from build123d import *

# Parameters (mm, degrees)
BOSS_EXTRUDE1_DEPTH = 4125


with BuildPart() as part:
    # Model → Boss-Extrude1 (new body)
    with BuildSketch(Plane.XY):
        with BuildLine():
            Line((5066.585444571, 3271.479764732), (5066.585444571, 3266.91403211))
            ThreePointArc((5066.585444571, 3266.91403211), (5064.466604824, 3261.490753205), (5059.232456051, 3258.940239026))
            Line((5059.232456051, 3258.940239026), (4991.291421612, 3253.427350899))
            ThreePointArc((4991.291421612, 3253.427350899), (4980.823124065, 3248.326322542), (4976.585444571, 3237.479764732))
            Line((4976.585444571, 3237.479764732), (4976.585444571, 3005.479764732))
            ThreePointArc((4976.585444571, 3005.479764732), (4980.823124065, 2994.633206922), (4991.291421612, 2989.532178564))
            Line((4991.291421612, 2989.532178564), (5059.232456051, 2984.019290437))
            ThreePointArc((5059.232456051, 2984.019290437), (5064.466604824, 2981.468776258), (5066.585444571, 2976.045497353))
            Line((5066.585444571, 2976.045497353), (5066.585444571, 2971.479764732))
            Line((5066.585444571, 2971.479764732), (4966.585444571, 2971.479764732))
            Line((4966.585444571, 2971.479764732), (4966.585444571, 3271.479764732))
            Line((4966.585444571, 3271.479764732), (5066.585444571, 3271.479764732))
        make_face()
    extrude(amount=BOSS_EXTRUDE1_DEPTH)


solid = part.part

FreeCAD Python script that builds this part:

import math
import FreeCAD as App
import Part
import Sketcher

doc = App.newDocument("Part")
body = doc.addObject("PartDesign::Body", "Body")

# Sketch on XY plane
sketch1 = body.newObject("Sketcher::SketchObject", "Sketch")
sketch1.AttachmentSupport = (doc.getObject("XY_Plane"), [""])
sketch1.MapMode = "FlatFace"
sketch1.addGeometry([
    Part.LineSegment(App.Vector(5066.6, 3266.9, 0), App.Vector(5066.6, 3271.5, 0)),  # 0
    Part.LineSegment(App.Vector(5066.6, 3271.5, 0), App.Vector(4966.6, 3271.5, 0)),  # 1
    Part.LineSegment(App.Vector(4966.6, 3271.5, 0), App.Vector(4966.6, 2971.5, 0)),  # 2
    Part.LineSegment(App.Vector(4966.6, 2971.5, 0), App.Vector(5066.6, 2971.5, 0)),  # 3
    Part.LineSegment(App.Vector(5066.6, 2971.5, 0), App.Vector(5066.6, 2976, 0)),  # 4
    Part.ArcOfCircle(Part.Circle(App.Vector(5058.6, 2976, 0), App.Vector(0, 0, 1), 8), math.radians(0), math.radians(85)),  # 5
    Part.LineSegment(App.Vector(5059.2, 2984, 0), App.Vector(4991.3, 2989.5, 0)),  # 6
    Part.ArcOfCircle(Part.Circle(App.Vector(4992.6, 3005.5, 0), App.Vector(0, 0, 1), 16), math.radians(180), math.radians(265)),  # 7
    Part.LineSegment(App.Vector(4976.6, 3005.5, 0), App.Vector(4976.6, 3237.5, 0)),  # 8
    Part.ArcOfCircle(Part.Circle(App.Vector(4992.6, 3237.5, 0), App.Vector(0, 0, 1), 16), math.radians(95), math.radians(180)),  # 9
    Part.LineSegment(App.Vector(4991.3, 3253.4, 0), App.Vector(5059.2, 3258.9, 0)),  # 10
    Part.ArcOfCircle(Part.Circle(App.Vector(5058.6, 3266.9, 0), App.Vector(0, 0, 1), 8), math.radians(-85), math.radians(0)),  # 11
], False)
sketch1.addConstraint([
    Sketcher.Constraint("Coincident", 0, 2, 1, 1),
    Sketcher.Constraint("Coincident", 1, 2, 2, 1),
    Sketcher.Constraint("Coincident", 2, 2, 3, 1),
    Sketcher.Constraint("Coincident", 3, 2, 4, 1),
    Sketcher.Constraint("Tangent", 4, 2, 5, 1),
    Sketcher.Constraint("Tangent", 5, 2, 6, 1),
    Sketcher.Constraint("Tangent", 6, 2, 7, 2),
    Sketcher.Constraint("Tangent", 7, 1, 8, 1),
    Sketcher.Constraint("Tangent", 8, 2, 9, 2),
    Sketcher.Constraint("Tangent", 9, 1, 10, 1),
    Sketcher.Constraint("Tangent", 10, 2, 11, 1),
    Sketcher.Constraint("Tangent", 11, 2, 0, 1),
    Sketcher.Constraint("Vertical", 0),
    Sketcher.Constraint("Horizontal", 1),
    Sketcher.Constraint("Vertical", 2),
    Sketcher.Constraint("Horizontal", 3),
    Sketcher.Constraint("Vertical", 4),
    Sketcher.Constraint("Vertical", 8),
    Sketcher.Constraint("Equal", 7, 9),
    Sketcher.Constraint("Equal", 5, 11),
    Sketcher.Constraint("Vertical", 5, 3, 11, 3),
    Sketcher.Constraint("Vertical", 6, 2, 9, 1),
    Sketcher.Constraint("Equal", 0, 4),
    Sketcher.Constraint("Radius", 5, 8.0),
    Sketcher.Constraint("Radius", 7, 16.0),
    Sketcher.Constraint("DistanceX", 1, 2, 1, 1, 100.0),
    Sketcher.Constraint("DistanceY", 2, 2, 2, 1, 300.0),
    Sketcher.Constraint("DistanceY", 8, 1, 8, 2, 232.0),
    Sketcher.Constraint("DistanceX", 7, 3, 5, 3, 66.0),
    Sketcher.Constraint("Distance", 6, 68.164332),
    Sketcher.Constraint("DistanceY", -1, 1, 5, 2, 2984.01929),
    Sketcher.Constraint("DistanceX", -1, 1, 6, 2, 4991.291422),
])
pad1 = body.newObject("PartDesign::Pad", "Pad")
pad1.Profile = sketch1
pad1.Length = 4125

doc.recompute()
